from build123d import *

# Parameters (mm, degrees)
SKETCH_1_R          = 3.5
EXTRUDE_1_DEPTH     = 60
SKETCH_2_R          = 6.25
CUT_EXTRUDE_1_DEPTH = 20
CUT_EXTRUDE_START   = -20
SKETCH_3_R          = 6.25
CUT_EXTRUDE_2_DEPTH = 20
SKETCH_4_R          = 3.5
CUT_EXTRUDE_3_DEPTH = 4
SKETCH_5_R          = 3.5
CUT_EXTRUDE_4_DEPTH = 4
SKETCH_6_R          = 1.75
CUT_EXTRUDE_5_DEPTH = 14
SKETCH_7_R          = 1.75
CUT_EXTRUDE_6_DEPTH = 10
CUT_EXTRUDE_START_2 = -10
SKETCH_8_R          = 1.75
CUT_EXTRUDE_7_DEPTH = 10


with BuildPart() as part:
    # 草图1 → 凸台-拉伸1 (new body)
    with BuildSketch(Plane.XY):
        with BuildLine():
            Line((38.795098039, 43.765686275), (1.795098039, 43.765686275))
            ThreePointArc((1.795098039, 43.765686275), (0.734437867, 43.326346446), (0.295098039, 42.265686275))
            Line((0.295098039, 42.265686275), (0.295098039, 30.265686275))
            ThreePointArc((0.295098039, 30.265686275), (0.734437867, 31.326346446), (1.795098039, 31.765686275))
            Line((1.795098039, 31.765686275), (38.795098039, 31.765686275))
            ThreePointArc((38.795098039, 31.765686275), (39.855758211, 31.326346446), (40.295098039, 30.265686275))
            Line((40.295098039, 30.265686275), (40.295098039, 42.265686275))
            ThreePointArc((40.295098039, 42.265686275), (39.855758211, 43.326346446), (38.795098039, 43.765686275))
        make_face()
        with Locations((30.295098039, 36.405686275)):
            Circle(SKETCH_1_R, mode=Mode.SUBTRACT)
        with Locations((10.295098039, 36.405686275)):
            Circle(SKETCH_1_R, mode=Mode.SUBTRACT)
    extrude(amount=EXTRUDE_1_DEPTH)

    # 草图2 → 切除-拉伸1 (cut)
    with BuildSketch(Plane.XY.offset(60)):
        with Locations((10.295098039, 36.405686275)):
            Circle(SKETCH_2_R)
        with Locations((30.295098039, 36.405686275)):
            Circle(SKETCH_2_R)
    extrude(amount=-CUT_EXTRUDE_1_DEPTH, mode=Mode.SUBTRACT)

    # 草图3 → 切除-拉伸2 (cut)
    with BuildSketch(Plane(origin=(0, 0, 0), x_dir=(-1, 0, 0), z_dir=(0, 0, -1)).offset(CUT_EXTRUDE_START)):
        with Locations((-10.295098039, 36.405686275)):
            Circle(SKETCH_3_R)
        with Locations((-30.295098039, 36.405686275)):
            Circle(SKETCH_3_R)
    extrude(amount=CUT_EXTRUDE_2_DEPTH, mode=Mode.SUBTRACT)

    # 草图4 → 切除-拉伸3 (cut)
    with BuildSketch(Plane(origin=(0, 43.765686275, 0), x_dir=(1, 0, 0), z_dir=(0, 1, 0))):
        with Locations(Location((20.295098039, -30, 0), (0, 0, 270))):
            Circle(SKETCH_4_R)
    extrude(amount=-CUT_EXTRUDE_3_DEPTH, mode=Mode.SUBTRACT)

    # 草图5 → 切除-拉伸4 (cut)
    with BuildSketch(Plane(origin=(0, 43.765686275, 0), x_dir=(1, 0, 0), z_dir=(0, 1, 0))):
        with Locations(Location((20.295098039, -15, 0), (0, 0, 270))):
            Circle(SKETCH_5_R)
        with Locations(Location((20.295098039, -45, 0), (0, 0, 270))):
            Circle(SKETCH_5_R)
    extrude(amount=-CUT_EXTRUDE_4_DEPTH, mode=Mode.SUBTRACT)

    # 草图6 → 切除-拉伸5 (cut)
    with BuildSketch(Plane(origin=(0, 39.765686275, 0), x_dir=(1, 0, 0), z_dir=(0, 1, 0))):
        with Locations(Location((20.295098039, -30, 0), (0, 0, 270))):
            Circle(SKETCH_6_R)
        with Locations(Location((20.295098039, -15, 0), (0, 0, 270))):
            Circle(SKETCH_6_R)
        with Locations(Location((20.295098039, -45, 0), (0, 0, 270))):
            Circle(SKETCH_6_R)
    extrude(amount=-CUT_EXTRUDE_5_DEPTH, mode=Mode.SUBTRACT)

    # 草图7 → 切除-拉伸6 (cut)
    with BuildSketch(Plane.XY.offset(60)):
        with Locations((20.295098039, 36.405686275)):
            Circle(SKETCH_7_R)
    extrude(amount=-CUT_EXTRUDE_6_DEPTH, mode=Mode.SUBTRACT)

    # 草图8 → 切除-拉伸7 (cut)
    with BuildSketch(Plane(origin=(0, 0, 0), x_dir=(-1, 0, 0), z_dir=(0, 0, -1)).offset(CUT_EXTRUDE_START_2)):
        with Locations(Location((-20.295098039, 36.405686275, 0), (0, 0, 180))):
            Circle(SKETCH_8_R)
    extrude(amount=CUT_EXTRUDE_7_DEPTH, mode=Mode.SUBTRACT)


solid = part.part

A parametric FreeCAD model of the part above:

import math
import FreeCAD as App
import Part
import Sketcher

V = App.Vector
Q = App.Units.Quantity

doc = App.newDocument("Part")
body = doc.addObject("PartDesign::Body", "Body")

sketch1 = body.newObject("Sketcher::SketchObject", "Sketch")
sketch1.AttachmentSupport = (doc.getObject("XY_Plane"), [""])
sketch1.MapMode = "FlatFace"
sketch1.addGeometry(Part.LineSegment(V(38.8, 43.8, 0), V(1.8, 43.8, 0)), False)
sketch1.addGeometry(Part.ArcOfCircle(Part.Circle(V(1.8, 42.3, 0), V(0, 0, 1), 1.5), math.radians(90), math.radians(180)), False)
sketch1.addGeometry(Part.LineSegment(V(0.3, 42.3, 0), V(0.3, 30.3, 0)), False)
sketch1.addGeometry(Part.ArcOfCircle(Part.Circle(V(1.8, 30.3, 0), V(0, 0, 1), 1.5), math.radians(90), math.radians(180)), False)
sketch1.addGeometry(Part.LineSegment(V(1.8, 31.8, 0), V(38.8, 31.8, 0)), False)
sketch1.addGeometry(Part.ArcOfCircle(Part.Circle(V(38.8, 30.3, 0), V(0, 0, 1), 1.5), math.radians(0), math.radians(90)), False)
sketch1.addGeometry(Part.LineSegment(V(40.3, 30.3, 0), V(40.3, 42.3, 0)), False)
sketch1.addGeometry(Part.ArcOfCircle(Part.Circle(V(38.8, 42.3, 0), V(0, 0, 1), 1.5), math.radians(0), math.radians(90)), False)
sketch1.addGeometry(Part.Circle(V(10.3, 36.4, 0), V(0, 0, 1), 3.5), False)
sketch1.addGeometry(Part.Circle(V(30.3, 36.4, 0), V(0, 0, 1), 3.5), False)
sketch1.addConstraint(Sketcher.Constraint("Tangent", 0, 2, 1, 1))
sketch1.addConstraint(Sketcher.Constraint("Tangent", 1, 2, 2, 1))
sketch1.addConstraint(Sketcher.Constraint("Tangent", 2, 2, 3, 2))
sketch1.addConstraint(Sketcher.Constraint("Tangent", 3, 1, 4, 1))
sketch1.addConstraint(Sketcher.Constraint("Tangent", 4, 2, 5, 2))
sketch1.addConstraint(Sketcher.Constraint("Tangent", 5, 1, 6, 1))
sketch1.addConstraint(Sketcher.Constraint("Tangent", 6, 2, 7, 1))
sketch1.addConstraint(Sketcher.Constraint("Tangent", 7, 2, 0, 1))
sketch1.addConstraint(Sketcher.Constraint("Horizontal", 0))
sketch1.addConstraint(Sketcher.Constraint("Vertical", 2))
sketch1.addConstraint(Sketcher.Constraint("Horizontal", 4))
sketch1.addConstraint(Sketcher.Constraint("Vertical", 6))
sketch1.addConstraint(Sketcher.Constraint("Equal", 1, 3))
sketch1.addConstraint(Sketcher.Constraint("Equal", 3, 5))
sketch1.addConstraint(Sketcher.Constraint("Equal", 5, 7))
sketch1.addConstraint(Sketcher.Constraint("Equal", 8, 9))
sketch1.addConstraint(Sketcher.Constraint("Horizontal", 8, 3, 9, 3))
sketch1.addConstraint(Sketcher.Constraint("Diameter", 8, Q("7 mm")))
sketch1.addConstraint(Sketcher.Constraint("Radius", 1, Q("1.5 mm")))
sketch1.addConstraint(Sketcher.Constraint("DistanceX", 0, 2, 0, 1, Q("37 mm")))
sketch1.addConstraint(Sketcher.Constraint("DistanceY", 2, 2, 2, 1, Q("12 mm")))
sketch1.addConstraint(Sketcher.Constraint("DistanceX", 8, 3, 9, 3, Q("20 mm")))
sketch1.addConstraint(Sketcher.Constraint("DistanceX", 1, 2, 8, 3, Q("10 mm")))
sketch1.addConstraint(Sketcher.Constraint("DistanceY", 8, 3, 1, 3, Q("5.86 mm")))
sketch1.addConstraint(Sketcher.Constraint("DistanceX", -1, 1, 1, 3, Q("1.795098 mm")))
sketch1.addConstraint(Sketcher.Constraint("DistanceY", -1, 1, 1, 3, Q("42.265686 mm")))
pad1 = body.newObject("PartDesign::Pad", "Pad")
pad1.Profile = sketch1
pad1.Length = 60

sketch2 = body.newObject("Sketcher::SketchObject", "Sketch001")
sketch2.AttachmentSupport = (doc.getObject("XY_Plane"), [""])
sketch2.MapMode = "FlatFace"
sketch2.AttachmentOffset = App.Placement(V(0, 0, 60), App.Rotation())
sketch2.addGeometry(Part.Circle(V(10, 36, 0), V(0, 0, 1), 6), False)
sketch2.addGeometry(Part.Circle(V(30, 36, 0), V(0, 0, 1), 6), False)
sketch2.addConstraint(Sketcher.Constraint("Equal", 0, 1))
sketch2.addConstraint(Sketcher.Constraint("Horizontal", 0, 3, 1, 3))
sketch2.addConstraint(Sketcher.Constraint("Diameter", 0, Q("12.5 mm")))
sketch2.addConstraint(Sketcher.Constraint("DistanceX", 0, 3, 1, 3, Q("20 mm")))
sketch2.addConstraint(Sketcher.Constraint("DistanceX", -1, 1, 0, 3, Q("10.295098 mm")))
sketch2.addConstraint(Sketcher.Constraint("DistanceY", -1, 1, 0, 3, Q("36.405686 mm")))
pocket1 = body.newObject("PartDesign::Pocket", "Pocket")
pocket1.Profile = sketch2
pocket1.Length = 20

sketch3 = body.newObject("Sketcher::SketchObject", "Sketch002")
sketch3.AttachmentSupport = (doc.getObject("XY_Plane"), [""])
sketch3.MapMode = "FlatFace"
sketch3.AttachmentOffset = App.Placement(V(0, 0, 20), App.Rotation())
sketch3.addGeometry(Part.Circle(V(10, 36, 0), V(0, 0, 1), 6), False)
sketch3.addGeometry(Part.Circle(V(30, 36, 0), V(0, 0, 1), 6), False)
sketch3.addConstraint(Sketcher.Constraint("Equal", 0, 1))
sketch3.addConstraint(Sketcher.Constraint("Horizontal", 0, 3, 1, 3))
sketch3.addConstraint(Sketcher.Constraint("Diameter", 0, Q("12.5 mm")))
sketch3.addConstraint(Sketcher.Constraint("DistanceX", 0, 3, 1, 3, Q("20 mm")))
sketch3.addConstraint(Sketcher.Constraint("DistanceX", -1, 1, 0, 3, Q("10.295098 mm")))
sketch3.addConstraint(Sketcher.Constraint("DistanceY", -1, 1, 0, 3, Q("36.405686 mm")))
pocket2 = body.newObject("PartDesign::Pocket", "Pocket001")
pocket2.Profile = sketch3
pocket2.Length = 20

sketch4 = body.newObject("Sketcher::SketchObject", "Sketch003")
sketch4.AttachmentSupport = (doc.getObject("XZ_Plane"), [""])
sketch4.MapMode = "FlatFace"
sketch4.AttachmentOffset = App.Placement(V(0, 0, -43.765686), App.Rotation())
sketch4.addGeometry(Part.Circle(V(20.3, 30, 0), V(0, 0, 1), 3.5), False)
sketch4.addConstraint(Sketcher.Constraint("Diameter", 0, Q("7 mm")))
sketch4.addConstraint(Sketcher.Constraint("DistanceY", -1, 1, 0, 3, Q("30 mm")))
sketch4.addConstraint(Sketcher.Constraint("DistanceX", -1, 1, 0, 3, Q("20.295098 mm")))
pocket3 = body.newObject("PartDesign::Pocket", "Pocket002")
pocket3.Profile = sketch4
pocket3.Length = 4
pocket3.Reversed = True

sketch5 = body.newObject("Sketcher::SketchObject", "Sketch004")
sketch5.AttachmentSupport = (doc.getObject("XZ_Plane"), [""])
sketch5.MapMode = "FlatFace"
sketch5.AttachmentOffset = App.Placement(V(0, 0, -43.765686), App.Rotation())
sketch5.addGeometry(Part.Circle(V(20.3, 15, 0), V(0, 0, 1), 3.5), False)
sketch5.addGeometry(Part.Circle(V(20.3, 45, 0), V(0, 0, 1), 3.5), False)
sketch5.addConstraint(Sketcher.Constraint("Equal", 0, 1))
sketch5.addConstraint(Sketcher.Constraint("Vertical", 0, 3, 1, 3))
sketch5.addConstraint(Sketcher.Constraint("Diameter", 0, Q("7 mm")))
sketch5.addConstraint(Sketcher.Constraint("DistanceY", -1, 1, 0, 3, Q("15 mm")))
sketch5.addConstraint(Sketcher.Constraint("DistanceY", -1, 1, 1, 3, Q("45 mm")))
sketch5.addConstraint(Sketcher.Constraint("DistanceX", -1, 1, 0, 3, Q("20.295098 mm")))
pocket4 = body.newObject("PartDesign::Pocket", "Pocket003")
pocket4.Profile = sketch5
pocket4.Length = 4
pocket4.Reversed = True

sketch6 = body.newObject("Sketcher::SketchObject", "Sketch005")
sketch6.AttachmentSupport = (doc.getObject("XZ_Plane"), [""])
sketch6.MapMode = "FlatFace"
sketch6.AttachmentOffset = App.Placement(V(0, 0, -39.765686), App.Rotation())
sketch6.addGeometry(Part.Circle(V(20.3, 30, 0), V(0, 0, 1), 1.8), False)
sketch6.addGeometry(Part.Circle(V(20.3, 15, 0), V(0, 0, 1), 1.8), False)
sketch6.addGeometry(Part.Circle(V(20.3, 45, 0), V(0, 0, 1), 1.8), False)
sketch6.addConstraint(Sketcher.Constraint("Equal", 0, 1))
sketch6.addConstraint(Sketcher.Constraint("Equal", 1, 2))
sketch6.addConstraint(Sketcher.Constraint("Vertical", 0, 3, 1, 3))
sketch6.addConstraint(Sketcher.Constraint("Vertical", 1, 3, 2, 3))
sketch6.addConstraint(Sketcher.Constraint("Diameter", 0, Q("3.5 mm")))
sketch6.addConstraint(Sketcher.Constraint("DistanceY", -1, 1, 0, 3, Q("30 mm")))
sketch6.addConstraint(Sketcher.Constraint("DistanceY", -1, 1, 1, 3, Q("15 mm")))
sketch6.addConstraint(Sketcher.Constraint("DistanceY", -1, 1, 2, 3, Q("45 mm")))
sketch6.addConstraint(Sketcher.Constraint("DistanceX", -1, 1, 0, 3, Q("20.295098 mm")))
pocket5 = body.newObject("PartDesign::Pocket", "Pocket004")
pocket5.Profile = sketch6
pocket5.Length = 14
pocket5.Reversed = True

sketch7 = body.newObject("Sketcher::SketchObject", "Sketch006")
sketch7.AttachmentSupport = (doc.getObject("XY_Plane"), [""])
sketch7.MapMode = "FlatFace"
sketch7.AttachmentOffset = App.Placement(V(0, 0, 60), App.Rotation())
sketch7.addGeometry(Part.Circle(V(20.3, 36.4, 0), V(0, 0, 1), 1.8), False)
sketch7.addConstraint(Sketcher.Constraint("Diameter", 0, Q("3.5 mm")))
sketch7.addConstraint(Sketcher.Constraint("DistanceX", -1, 1, 0, 3, Q("20.295098 mm")))
sketch7.addConstraint(Sketcher.Constraint("DistanceY", -1, 1, 0, 3, Q("36.405686 mm")))
pocket6 = body.newObject("PartDesign::Pocket", "Pocket005")
pocket6.Profile = sketch7
pocket6.Length = 10

sketch8 = body.newObject("Sketcher::SketchObject", "Sketch007")
sketch8.AttachmentSupport = (doc.getObject("XY_Plane"), [""])
sketch8.MapMode = "FlatFace"
sketch8.AttachmentOffset = App.Placement(V(0, 0, 10), App.Rotation())
sketch8.addGeometry(Part.Circle(V(20.3, 36.4, 0), V(0, 0, 1), 1.8), False)
sketch8.addConstraint(Sketcher.Constraint("Diameter", 0, Q("3.5 mm")))
sketch8.addConstraint(Sketcher.Constraint("DistanceX", -1, 1, 0, 3, Q("20.295098 mm")))
sketch8.addConstraint(Sketcher.Constraint("DistanceY", -1, 1, 0, 3, Q("36.405686 mm")))
pocket7 = body.newObject("PartDesign::Pocket", "Pocket006")
pocket7.Profile = sketch8
pocket7.Length = 10

doc.recompute()
